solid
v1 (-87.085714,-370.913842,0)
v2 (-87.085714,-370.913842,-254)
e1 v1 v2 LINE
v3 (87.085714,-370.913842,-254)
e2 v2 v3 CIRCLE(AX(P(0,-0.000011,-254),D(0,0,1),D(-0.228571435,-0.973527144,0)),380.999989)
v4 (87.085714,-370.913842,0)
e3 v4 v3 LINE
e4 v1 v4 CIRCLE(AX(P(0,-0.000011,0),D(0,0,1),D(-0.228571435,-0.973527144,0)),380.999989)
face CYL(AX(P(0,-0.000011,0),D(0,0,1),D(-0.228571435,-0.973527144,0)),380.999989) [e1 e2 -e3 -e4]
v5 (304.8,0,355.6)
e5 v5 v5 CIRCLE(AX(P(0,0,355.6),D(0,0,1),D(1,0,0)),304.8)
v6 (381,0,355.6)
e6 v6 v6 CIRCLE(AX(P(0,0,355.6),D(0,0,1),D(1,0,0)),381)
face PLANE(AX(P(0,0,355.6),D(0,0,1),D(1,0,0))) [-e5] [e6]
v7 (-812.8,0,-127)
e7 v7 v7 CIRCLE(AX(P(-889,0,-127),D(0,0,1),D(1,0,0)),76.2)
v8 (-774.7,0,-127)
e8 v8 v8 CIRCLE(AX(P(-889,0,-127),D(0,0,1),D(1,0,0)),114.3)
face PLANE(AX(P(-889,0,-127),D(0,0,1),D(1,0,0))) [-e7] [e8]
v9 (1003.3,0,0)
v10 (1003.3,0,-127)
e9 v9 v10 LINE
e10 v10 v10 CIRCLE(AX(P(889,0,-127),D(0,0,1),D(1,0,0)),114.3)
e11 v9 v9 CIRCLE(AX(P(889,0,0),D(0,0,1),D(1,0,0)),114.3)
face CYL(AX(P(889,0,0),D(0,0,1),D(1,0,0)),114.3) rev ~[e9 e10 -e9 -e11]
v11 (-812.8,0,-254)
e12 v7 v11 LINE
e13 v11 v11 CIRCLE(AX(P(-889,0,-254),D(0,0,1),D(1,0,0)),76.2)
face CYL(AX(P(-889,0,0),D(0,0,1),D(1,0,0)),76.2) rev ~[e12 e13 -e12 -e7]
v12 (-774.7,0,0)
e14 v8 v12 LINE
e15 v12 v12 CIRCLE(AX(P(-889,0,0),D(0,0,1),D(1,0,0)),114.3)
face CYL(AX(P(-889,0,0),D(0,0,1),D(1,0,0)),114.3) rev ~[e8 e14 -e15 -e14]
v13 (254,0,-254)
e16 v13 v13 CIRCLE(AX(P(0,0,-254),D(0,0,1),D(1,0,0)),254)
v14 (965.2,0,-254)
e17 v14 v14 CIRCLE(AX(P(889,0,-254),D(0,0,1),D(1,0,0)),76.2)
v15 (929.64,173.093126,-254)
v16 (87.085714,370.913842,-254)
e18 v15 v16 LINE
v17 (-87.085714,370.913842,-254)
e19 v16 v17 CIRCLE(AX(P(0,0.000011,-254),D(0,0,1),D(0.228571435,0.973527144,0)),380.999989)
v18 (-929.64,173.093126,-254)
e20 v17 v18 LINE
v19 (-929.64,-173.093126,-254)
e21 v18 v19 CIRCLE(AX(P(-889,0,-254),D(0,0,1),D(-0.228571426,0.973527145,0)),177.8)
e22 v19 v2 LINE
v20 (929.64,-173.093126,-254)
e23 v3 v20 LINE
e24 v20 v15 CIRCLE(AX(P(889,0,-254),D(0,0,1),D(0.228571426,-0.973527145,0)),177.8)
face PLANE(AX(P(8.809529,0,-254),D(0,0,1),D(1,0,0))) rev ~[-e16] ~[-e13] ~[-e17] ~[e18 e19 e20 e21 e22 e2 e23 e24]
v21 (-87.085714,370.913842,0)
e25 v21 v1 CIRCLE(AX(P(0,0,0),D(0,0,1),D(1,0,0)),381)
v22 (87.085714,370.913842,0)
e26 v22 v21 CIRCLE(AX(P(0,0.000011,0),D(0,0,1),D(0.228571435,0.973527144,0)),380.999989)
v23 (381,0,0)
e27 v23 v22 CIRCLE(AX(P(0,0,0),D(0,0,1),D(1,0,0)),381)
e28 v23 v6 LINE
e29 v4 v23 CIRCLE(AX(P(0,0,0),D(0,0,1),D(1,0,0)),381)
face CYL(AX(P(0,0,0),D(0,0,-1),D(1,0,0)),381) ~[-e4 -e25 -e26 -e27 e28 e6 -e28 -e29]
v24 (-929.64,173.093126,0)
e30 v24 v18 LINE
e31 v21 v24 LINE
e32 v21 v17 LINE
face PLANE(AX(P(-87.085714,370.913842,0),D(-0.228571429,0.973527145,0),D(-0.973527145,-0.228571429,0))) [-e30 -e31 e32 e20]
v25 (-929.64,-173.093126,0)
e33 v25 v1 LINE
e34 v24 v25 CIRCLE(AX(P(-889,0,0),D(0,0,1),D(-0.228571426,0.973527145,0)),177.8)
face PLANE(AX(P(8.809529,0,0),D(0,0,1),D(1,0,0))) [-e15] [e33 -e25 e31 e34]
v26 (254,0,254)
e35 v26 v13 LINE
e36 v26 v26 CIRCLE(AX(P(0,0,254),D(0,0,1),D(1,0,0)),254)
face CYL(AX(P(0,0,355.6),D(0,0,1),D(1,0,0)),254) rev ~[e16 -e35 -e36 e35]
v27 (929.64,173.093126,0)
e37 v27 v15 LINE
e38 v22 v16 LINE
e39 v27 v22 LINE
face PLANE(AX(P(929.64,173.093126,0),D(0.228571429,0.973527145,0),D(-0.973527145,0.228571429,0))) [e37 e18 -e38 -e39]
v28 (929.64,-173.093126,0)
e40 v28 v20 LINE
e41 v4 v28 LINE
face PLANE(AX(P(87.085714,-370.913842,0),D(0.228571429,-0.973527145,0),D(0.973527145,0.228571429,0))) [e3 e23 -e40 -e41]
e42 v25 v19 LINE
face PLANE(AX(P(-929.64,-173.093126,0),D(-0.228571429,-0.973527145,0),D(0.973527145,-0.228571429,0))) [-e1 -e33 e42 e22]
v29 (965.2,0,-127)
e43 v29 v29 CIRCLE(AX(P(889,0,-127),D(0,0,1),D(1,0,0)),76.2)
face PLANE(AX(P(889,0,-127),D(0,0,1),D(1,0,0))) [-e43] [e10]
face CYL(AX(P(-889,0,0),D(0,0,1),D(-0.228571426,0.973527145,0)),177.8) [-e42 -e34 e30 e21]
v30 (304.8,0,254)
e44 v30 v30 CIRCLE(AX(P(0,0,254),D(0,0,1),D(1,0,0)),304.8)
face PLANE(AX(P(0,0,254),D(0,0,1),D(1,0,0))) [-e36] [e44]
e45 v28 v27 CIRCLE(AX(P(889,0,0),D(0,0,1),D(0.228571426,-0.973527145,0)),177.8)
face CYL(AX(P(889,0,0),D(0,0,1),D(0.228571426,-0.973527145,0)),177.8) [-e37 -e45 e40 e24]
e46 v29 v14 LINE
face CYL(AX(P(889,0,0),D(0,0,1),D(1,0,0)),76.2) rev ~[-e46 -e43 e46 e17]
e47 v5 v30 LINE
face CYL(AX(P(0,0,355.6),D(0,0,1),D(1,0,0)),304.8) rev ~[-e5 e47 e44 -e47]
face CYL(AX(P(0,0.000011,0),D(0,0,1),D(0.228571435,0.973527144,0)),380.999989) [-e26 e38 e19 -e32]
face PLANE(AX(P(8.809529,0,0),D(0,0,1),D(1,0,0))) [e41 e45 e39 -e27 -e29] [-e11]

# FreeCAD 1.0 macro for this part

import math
import FreeCAD as App
import Part
import Sketcher
Q = App.Units.Quantity

doc = App.newDocument("Part")
params = doc.addObject("Spreadsheet::Sheet", "Params")
for row, (alias, value) in enumerate([
    ("sketch1_radius", "7 in"),
    ("pad1_length", "10 in"),
    ("sketch2_diameter", "30 in"),
    ("pad2_length", "14 in"),
    ("sketch3_diameter", "6 in"),
    ("pocket1_length", "10 in"),
    ("sketch4_diameter", "6 in"),
    ("pocket2_length", "10 in"),
    ("sketch5_diameter", "9 in"),
    ("sketch5_diameter2", "6 in"),
    ("pocket3_length", "5 in"),
    ("sketch6_diameter", "9 in"),
    ("sketch6_diameter2", "6 in"),
    ("pocket4_length", "1 in"),
    ("sketch7_diameter", "9 in"),
    ("pocket5_length", "5 in"),
    ("sketch8_diameter", "20 in"),
    ("pocket6_length", "24 in"),
    ("sketch9_diameter", "24 in"),
    ("pocket7_length", "4 in"),
], start=1):
    params.set(f"A{row}", alias)
    params.set(f"B{row}", "=" + value)
    params.setAlias(f"B{row}", alias)

body = doc.addObject("PartDesign::Body", "Body")

# Sketch on XY plane
sketch1 = body.newObject("Sketcher::SketchObject", "Sketch")
sketch1.AttachmentSupport = (doc.getObject("XY_Plane"), [""])
sketch1.MapMode = "FlatFace"
sketch1.addGeometry([
    Part.ArcOfCircle(Part.Circle(App.Vector(0, 0.000011, 0), App.Vector(0, 0, 1), 380.999989), math.radians(76.787019), math.radians(103.212981)),  # 0
    Part.LineSegment(App.Vector(-87.085714, 370.913842, 0), App.Vector(-929.64, 173.093126, 0)),  # 1
    Part.ArcOfCircle(Part.Circle(App.Vector(-889, 0, 0), App.Vector(0, 0, 1), 177.8), math.radians(103.21298), math.radians(256.78702)),  # 2
    Part.LineSegment(App.Vector(-929.64, -173.093126, 0), App.Vector(-87.085714, -370.913842, 0)),  # 3
    Part.ArcOfCircle(Part.Circle(App.Vector(0, -0.000011, 0), App.Vector(0, 0, 1), 380.999989), math.radians(-103.212981), math.radians(-76.787019)),  # 4
    Part.LineSegment(App.Vector(87.085714, -370.913842, 0), App.Vector(929.64, -173.093126, 0)),  # 5
    Part.ArcOfCircle(Part.Circle(App.Vector(889, 0, 0), App.Vector(0, 0, 1), 177.8), math.radians(-76.78702), math.radians(76.78702)),  # 6
    Part.LineSegment(App.Vector(929.64, 173.093126, 0), App.Vector(87.085714, 370.913842, 0)),  # 7
], False)
sketch1.addConstraint([
    Sketcher.Constraint("Tangent", 0, 2, 1, 1),
    Sketcher.Constraint("Tangent", 1, 2, 2, 1),
    Sketcher.Constraint("Tangent", 2, 2, 3, 1),
    Sketcher.Constraint("Tangent", 3, 2, 4, 1),
    Sketcher.Constraint("Tangent", 4, 2, 5, 1),
    Sketcher.Constraint("Tangent", 5, 2, 6, 1),
    Sketcher.Constraint("Tangent", 6, 2, 7, 1),
    Sketcher.Constraint("Tangent", 7, 2, 0, 1),
    Sketcher.Constraint("Equal", 0, 4),
    Sketcher.Constraint("Equal", 2, 6),
    Sketcher.Constraint("Symmetric", 0, 3, 4, 3, -1, 1),
    Sketcher.Constraint("Symmetric", 2, 3, 6, 3, -1, 1),
    Sketcher.Constraint("PointOnObject", 0, 3, -2),
    Sketcher.Constraint("PointOnObject", 2, 3, -1),
    Sketcher.Constraint("Radius", 2, Q("7 in")),
    Sketcher.Constraint("DistanceX", 2, 3, -1, 1, Q("35 in")),
    Sketcher.Constraint("DistanceX", 1, 2, -1, 1, Q("36.6 in")),
    Sketcher.Constraint("Radius", 0, 380.999989),
])
sketch1.setExpression("Constraints[14]", "Params.sketch1_radius")
pad1 = body.newObject("PartDesign::Pad", "Pad")
pad1.Profile = sketch1
pad1.setExpression("Length", "Params.pad1_length")
pad1.Reversed = True

# Sketch on XY plane
sketch2 = body.newObject("Sketcher::SketchObject", "Sketch001")
sketch2.AttachmentSupport = (doc.getObject("XY_Plane"), [""])
sketch2.MapMode = "FlatFace"
sketch2.addGeometry(Part.Circle(App.Vector(0, 0, 0), App.Vector(0, 0, 1), 381), False)
sketch2.addConstraint([
    Sketcher.Constraint("Coincident", 0, 3, -1, 1),
    Sketcher.Constraint("Diameter", 0, Q("30 in")),
])
sketch2.setExpression("Constraints[1]", "Params.sketch2_diameter")
pad2 = body.newObject("PartDesign::Pad", "Pad001")
pad2.Profile = sketch2
pad2.setExpression("Length", "Params.pad2_length")

# Sketch on XY plane
sketch3 = body.newObject("Sketcher::SketchObject", "Sketch002")
sketch3.AttachmentSupport = (doc.getObject("XY_Plane"), [""])
sketch3.MapMode = "FlatFace"
sketch3.addGeometry(Part.Circle(App.Vector(-889, 0, 0), App.Vector(0, 0, 1), 76), False)
sketch3.addConstraint([
    Sketcher.Constraint("PointOnObject", 0, 3, -1),
    Sketcher.Constraint("Diameter", 0, Q("6 in")),
    Sketcher.Constraint("DistanceX", 0, 3, -1, 1, Q("35 in")),
])
sketch3.setExpression("Constraints[1]", "Params.sketch3_diameter")
pocket1 = body.newObject("PartDesign::Pocket", "Pocket")
pocket1.Profile = sketch3
pocket1.setExpression("Length", "Params.pocket1_length")

# Sketch on XY plane
sketch4 = body.newObject("Sketcher::SketchObject", "Sketch003")
sketch4.AttachmentSupport = (doc.getObject("XY_Plane"), [""])
sketch4.MapMode = "FlatFace"
sketch4.addGeometry(Part.Circle(App.Vector(889, 0, 0), App.Vector(0, 0, 1), 76), False)
sketch4.addConstraint([
    Sketcher.Constraint("PointOnObject", 0, 3, -1),
    Sketcher.Constraint("Diameter", 0, Q("6 in")),
    Sketcher.Constraint("DistanceX", -1, 1, 0, 3, Q("35 in")),
])
sketch4.setExpression("Constraints[1]", "Params.sketch4_diameter")
pocket2 = body.newObject("PartDesign::Pocket", "Pocket001")
pocket2.Profile = sketch4
pocket2.setExpression("Length", "Params.pocket2_length")

# Sketch on XY plane
sketch5 = body.newObject("Sketcher::SketchObject", "Sketch004")
sketch5.AttachmentSupport = (doc.getObject("XY_Plane"), [""])
sketch5.MapMode = "FlatFace"
sketch5.addGeometry([
    Part.Circle(App.Vector(-889, 0, 0), App.Vector(0, 0, 1), 114),
    Part.Circle(App.Vector(-889, 0, 0), App.Vector(0, 0, 1), 76),
], False)
sketch5.addConstraint([
    Sketcher.Constraint("Coincident", 1, 3, 0, 3),
    Sketcher.Constraint("PointOnObject", 0, 3, -1),
    Sketcher.Constraint("Diameter", 0, Q("9 in")),
    Sketcher.Constraint("Diameter", 1, Q("6 in")),
    Sketcher.Constraint("DistanceX", 0, 3, -1, 1, Q("35 in")),
])
sketch5.setExpression("Constraints[2]", "Params.sketch5_diameter")
sketch5.setExpression("Constraints[3]", "Params.sketch5_diameter2")
pocket3 = body.newObject("PartDesign::Pocket", "Pocket002")
pocket3.Profile = sketch5
pocket3.setExpression("Length", "Params.pocket3_length")

# Sketch on XY plane
sketch6 = body.newObject("Sketcher::SketchObject", "Sketch005")
sketch6.AttachmentSupport = (doc.getObject("XY_Plane"), [""])
sketch6.MapMode = "FlatFace"
sketch6.addGeometry([
    Part.Circle(App.Vector(-889, 0, 0), App.Vector(0, 0, 1), 114),
    Part.Circle(App.Vector(-889, 0, 0), App.Vector(0, 0, 1), 76),
], False)
sketch6.addConstraint([
    Sketcher.Constraint("Coincident", 1, 3, 0, 3),
    Sketcher.Constraint("PointOnObject", 0, 3, -1),
    Sketcher.Constraint("Diameter", 0, Q("9 in")),
    Sketcher.Constraint("Diameter", 1, Q("6 in")),
    Sketcher.Constraint("DistanceX", 0, 3, -1, 1, Q("35 in")),
])
sketch6.setExpression("Constraints[2]", "Params.sketch6_diameter")
sketch6.setExpression("Constraints[3]", "Params.sketch6_diameter2")
pocket4 = body.newObject("PartDesign::Pocket", "Pocket003")
pocket4.Profile = sketch6
pocket4.setExpression("Length", "Params.pocket4_length")

# Sketch on XY plane
sketch7 = body.newObject("Sketcher::SketchObject", "Sketch006")
sketch7.AttachmentSupport = (doc.getObject("XY_Plane"), [""])
sketch7.MapMode = "FlatFace"
sketch7.addGeometry(Part.Circle(App.Vector(889, 0, 0), App.Vector(0, 0, 1), 114), False)
sketch7.addConstraint([
    Sketcher.Constraint("PointOnObject", 0, 3, -1),
    Sketcher.Constraint("Diameter", 0, Q("9 in")),
    Sketcher.Constraint("DistanceX", -1, 1, 0, 3, Q("35 in")),
])
sketch7.setExpression("Constraints[1]", "Params.sketch7_diameter")
pocket5 = body.newObject("PartDesign::Pocket", "Pocket004")
pocket5.Profile = sketch7
pocket5.setExpression("Length", "Params.pocket5_length")

# Sketch on XY plane
sketch8 = body.newObject("Sketcher::SketchObject", "Sketch007")
sketch8.AttachmentSupport = (doc.getObject("XY_Plane"), [""])
sketch8.MapMode = "FlatFace"
sketch8.AttachmentOffset = App.Placement(App.Vector(0, 0, 14 * 25.4), App.Rotation())
sketch8.addGeometry(Part.Circle(App.Vector(0, 0, 0), App.Vector(0, 0, 1), 254), False)
sketch8.addConstraint([
    Sketcher.Constraint("Coincident", 0, 3, -1, 1),
    Sketcher.Constraint("Diameter", 0, Q("20 in")),
])
sketch8.setExpression("Constraints[1]", "Params.sketch8_diameter")
pocket6 = body.newObject("PartDesign::Pocket", "Pocket005")
pocket6.Profile = sketch8
pocket6.setExpression("Length", "Params.pocket6_length")

# Sketch on XY plane
sketch9 = body.newObject("Sketcher::SketchObject", "Sketch008")
sketch9.AttachmentSupport = (doc.getObject("XY_Plane"), [""])
sketch9.MapMode = "FlatFace"
sketch9.AttachmentOffset = App.Placement(App.Vector(0, 0, 14 * 25.4), App.Rotation())
sketch9.addGeometry(Part.Circle(App.Vector(0, 0, 0), App.Vector(0, 0, 1), 305), False)
sketch9.addConstraint([
    Sketcher.Constraint("Coincident", 0, 3, -1, 1),
    Sketcher.Constraint("Diameter", 0, Q("24 in")),
])
sketch9.setExpression("Constraints[1]", "Params.sketch9_diameter")
pocket7 = body.newObject("PartDesign::Pocket", "Pocket006")
pocket7.Profile = sketch9
pocket7.setExpression("Length", "Params.pocket7_length")

doc.recompute()
